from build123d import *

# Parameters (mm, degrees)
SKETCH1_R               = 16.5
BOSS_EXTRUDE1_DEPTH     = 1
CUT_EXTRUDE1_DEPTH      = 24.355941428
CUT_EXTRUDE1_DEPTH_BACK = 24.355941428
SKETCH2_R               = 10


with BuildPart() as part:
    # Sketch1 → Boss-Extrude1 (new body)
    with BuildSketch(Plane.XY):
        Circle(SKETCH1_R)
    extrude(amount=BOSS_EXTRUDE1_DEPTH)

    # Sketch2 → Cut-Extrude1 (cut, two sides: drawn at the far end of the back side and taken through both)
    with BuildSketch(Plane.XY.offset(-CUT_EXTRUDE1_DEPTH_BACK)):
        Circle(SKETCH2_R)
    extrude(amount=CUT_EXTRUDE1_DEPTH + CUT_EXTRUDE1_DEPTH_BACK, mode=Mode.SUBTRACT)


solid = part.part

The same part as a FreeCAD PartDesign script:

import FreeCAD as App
import Part
import Sketcher
from FreeCAD import Vector

doc = App.newDocument("Part")
params = doc.addObject("Spreadsheet::Sheet", "Params")
for row, (alias, value) in enumerate([
    ("sketch1_diameter", "33 mm"),
    ("pad1_length", "1 mm"),
    ("sketch2_diameter", "20 mm"),
], start=1):
    params.set(f"A{row}", alias)
    params.set(f"B{row}", "=" + value)
    params.setAlias(f"B{row}", alias)

body = doc.addObject("PartDesign::Body", "Body")

# Sketch on XY plane
sketch1 = doc.addObject("Sketcher::SketchObject", "Sketch")
body.addObject(sketch1)
sketch1.AttachmentSupport = (doc.XY_Plane, [""])
sketch1.MapMode = "FlatFace"
sketch1.addGeometry(Part.Circle(Vector(0, 0, 0), Vector(0, 0, 1), 16), False)
sketch1.addConstraint(Sketcher.Constraint("Coincident", 0, 3, -1, 1))
sketch1.addConstraint(Sketcher.Constraint("Diameter", 0, 33.0))
sketch1.setExpression("Constraints[1]", "Params.sketch1_diameter")
pad1 = doc.addObject("PartDesign::Pad", "Pad")
body.addObject(pad1)
pad1.Profile = sketch1
pad1.setExpression("Length", "Params.pad1_length")

# Sketch on XY plane
sketch2 = doc.addObject("Sketcher::SketchObject", "Sketch001")
body.addObject(sketch2)
sketch2.AttachmentSupport = (doc.XY_Plane, [""])
sketch2.MapMode = "FlatFace"
sketch2.addGeometry(Part.Circle(Vector(0, 0, 0), Vector(0, 0, 1), 10), False)
sketch2.addConstraint(Sketcher.Constraint("Coincident", 0, 3, -1, 1))
sketch2.addConstraint(Sketcher.Constraint("Diameter", 0, 20.0))
sketch2.setExpression("Constraints[1]", "Params.sketch2_diameter")
pocket1 = doc.addObject("PartDesign::Pocket", "Pocket")
body.addObject(pocket1)
pocket1.Profile = sketch2
pocket1.Type = "ThroughAll"
pocket1.Midplane = True

doc.recompute()
